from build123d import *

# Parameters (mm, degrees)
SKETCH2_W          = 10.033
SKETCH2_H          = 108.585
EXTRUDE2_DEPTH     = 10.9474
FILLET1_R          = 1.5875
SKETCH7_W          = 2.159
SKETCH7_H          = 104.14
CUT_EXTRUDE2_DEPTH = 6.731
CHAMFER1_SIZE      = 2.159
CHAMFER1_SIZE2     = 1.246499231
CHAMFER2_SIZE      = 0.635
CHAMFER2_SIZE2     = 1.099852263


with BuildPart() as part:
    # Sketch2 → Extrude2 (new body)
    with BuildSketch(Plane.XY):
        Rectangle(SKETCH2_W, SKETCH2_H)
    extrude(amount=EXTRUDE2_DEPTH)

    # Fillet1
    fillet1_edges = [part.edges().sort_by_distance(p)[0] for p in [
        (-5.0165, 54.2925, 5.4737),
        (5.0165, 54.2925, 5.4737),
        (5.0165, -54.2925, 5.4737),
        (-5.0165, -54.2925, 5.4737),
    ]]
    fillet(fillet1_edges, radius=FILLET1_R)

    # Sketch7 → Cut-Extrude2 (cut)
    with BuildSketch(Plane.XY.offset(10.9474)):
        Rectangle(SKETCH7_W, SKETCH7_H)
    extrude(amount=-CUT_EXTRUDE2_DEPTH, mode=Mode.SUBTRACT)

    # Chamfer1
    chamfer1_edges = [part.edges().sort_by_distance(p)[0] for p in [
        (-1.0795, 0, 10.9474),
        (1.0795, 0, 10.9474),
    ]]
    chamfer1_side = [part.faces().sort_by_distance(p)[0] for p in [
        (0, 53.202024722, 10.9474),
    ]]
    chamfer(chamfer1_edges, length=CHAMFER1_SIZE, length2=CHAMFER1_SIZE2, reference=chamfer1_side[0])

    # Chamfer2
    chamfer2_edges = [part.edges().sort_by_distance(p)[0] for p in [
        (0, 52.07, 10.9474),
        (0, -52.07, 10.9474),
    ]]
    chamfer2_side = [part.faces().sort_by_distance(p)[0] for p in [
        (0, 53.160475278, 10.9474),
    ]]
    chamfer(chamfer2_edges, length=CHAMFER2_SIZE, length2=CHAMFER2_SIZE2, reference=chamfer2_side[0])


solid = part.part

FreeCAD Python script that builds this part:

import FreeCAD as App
import Part
import Sketcher
Q = App.Units.Quantity


def edges_at(feature, points):
    """Names of the edges that pass closest to the given points."""
    edges = feature.Shape.Edges
    near = lambda p: min(range(len(edges)), key=lambda i: edges[i].distToShape(Part.Vertex(*p))[0])
    return sorted({f"Edge{near(p) + 1}" for p in points})

doc = App.newDocument("Part")
body = doc.addObject("PartDesign::Body", "Body")

# Sketch on XY plane
sketch1 = body.newObject("Sketcher::SketchObject", "Sketch")
sketch1.AttachmentSupport = (doc.getObject("XY_Plane"), [""])
sketch1.MapMode = "FlatFace"
sketch1.addGeometry([
    Part.LineSegment(App.Vector(-5, 54, 0), App.Vector(-5, -54, 0)),
    Part.LineSegment(App.Vector(-5, -54, 0), App.Vector(5, -54, 0)),
    Part.LineSegment(App.Vector(5, -54, 0), App.Vector(5, 54, 0)),
    Part.LineSegment(App.Vector(5, 54, 0), App.Vector(-5, 54, 0)),
], False)
sketch1.addConstraint([
    Sketcher.Constraint("Coincident", 0, 2, 1, 1),
    Sketcher.Constraint("Coincident", 1, 2, 2, 1),
    Sketcher.Constraint("Coincident", 2, 2, 3, 1),
    Sketcher.Constraint("Coincident", 3, 2, 0, 1),
    Sketcher.Constraint("Vertical", 0),
    Sketcher.Constraint("Horizontal", 1),
    Sketcher.Constraint("Vertical", 2),
    Sketcher.Constraint("Horizontal", 3),
    Sketcher.Constraint("Symmetric", 0, 2, 2, 2, -1, 1),
    Sketcher.Constraint("DistanceX", 1, 1, 1, 2, Q("0.395 in")),
    Sketcher.Constraint("DistanceY", 0, 2, 0, 1, Q("4.275 in")),
])
pad1 = body.newObject("PartDesign::Pad", "Pad")
pad1.Profile = sketch1
pad1.Length = Q("0.431 in")
doc.recompute()

fillet = body.newObject("PartDesign::Fillet", "Fillet")
fillet.Base = (pad1, edges_at(pad1, [
    (-5.016, 54.292, 5.474),
    (5.016, 54.292, 5.474),
    (5.016, -54.292, 5.474),
    (-5.016, -54.292, 5.474),
]))
fillet.Radius = Q("0.0625 in")

# Sketch on XY plane
sketch2 = body.newObject("Sketcher::SketchObject", "Sketch001")
sketch2.AttachmentSupport = (doc.getObject("XY_Plane"), [""])
sketch2.MapMode = "FlatFace"
sketch2.AttachmentOffset = App.Placement(App.Vector(0, 0, 0.431 * 25.4), App.Rotation())
sketch2.addGeometry([
    Part.LineSegment(App.Vector(-1.1, 52.1, 0), App.Vector(-1.1, -52.1, 0)),
    Part.LineSegment(App.Vector(-1.1, -52.1, 0), App.Vector(1.1, -52.1, 0)),
    Part.LineSegment(App.Vector(1.1, -52.1, 0), App.Vector(1.1, 52.1, 0)),
    Part.LineSegment(App.Vector(1.1, 52.1, 0), App.Vector(-1.1, 52.1, 0)),
], False)
sketch2.addConstraint([
    Sketcher.Constraint("Coincident", 0, 2, 1, 1),
    Sketcher.Constraint("Coincident", 1, 2, 2, 1),
    Sketcher.Constraint("Coincident", 2, 2, 3, 1),
    Sketcher.Constraint("Coincident", 3, 2, 0, 1),
    Sketcher.Constraint("Vertical", 0),
    Sketcher.Constraint("Horizontal", 1),
    Sketcher.Constraint("Vertical", 2),
    Sketcher.Constraint("Horizontal", 3),
    Sketcher.Constraint("Symmetric", 0, 2, 2, 2, -1, 1),
    Sketcher.Constraint("DistanceY", 0, 2, 0, 1, Q("4.1 in")),
    Sketcher.Constraint("DistanceX", 1, 1, 1, 2, Q("0.085 in")),
])
pocket1 = body.newObject("PartDesign::Pocket", "Pocket")
pocket1.Profile = sketch2
pocket1.Length = Q("0.265 in")
doc.recompute()

chamfer = body.newObject("PartDesign::Chamfer", "Chamfer")
chamfer.Base = (pocket1, edges_at(pocket1, [(-1.079, 0, 10.947), (1.079, 0, 10.947)]))
chamfer.ChamferType = "Two distances"
chamfer.Size = Q("0.085 in")
chamfer.Size2 = 1.246499
doc.recompute()

chamfer2 = body.newObject("PartDesign::Chamfer", "Chamfer001")
chamfer2.Base = (chamfer, edges_at(chamfer, [(0, 52.07, 10.947), (0, -52.07, 10.947)]))
chamfer2.ChamferType = "Two distances"
chamfer2.Size = Q("0.025 in")
chamfer2.Size2 = 1.099852

doc.recompute()
